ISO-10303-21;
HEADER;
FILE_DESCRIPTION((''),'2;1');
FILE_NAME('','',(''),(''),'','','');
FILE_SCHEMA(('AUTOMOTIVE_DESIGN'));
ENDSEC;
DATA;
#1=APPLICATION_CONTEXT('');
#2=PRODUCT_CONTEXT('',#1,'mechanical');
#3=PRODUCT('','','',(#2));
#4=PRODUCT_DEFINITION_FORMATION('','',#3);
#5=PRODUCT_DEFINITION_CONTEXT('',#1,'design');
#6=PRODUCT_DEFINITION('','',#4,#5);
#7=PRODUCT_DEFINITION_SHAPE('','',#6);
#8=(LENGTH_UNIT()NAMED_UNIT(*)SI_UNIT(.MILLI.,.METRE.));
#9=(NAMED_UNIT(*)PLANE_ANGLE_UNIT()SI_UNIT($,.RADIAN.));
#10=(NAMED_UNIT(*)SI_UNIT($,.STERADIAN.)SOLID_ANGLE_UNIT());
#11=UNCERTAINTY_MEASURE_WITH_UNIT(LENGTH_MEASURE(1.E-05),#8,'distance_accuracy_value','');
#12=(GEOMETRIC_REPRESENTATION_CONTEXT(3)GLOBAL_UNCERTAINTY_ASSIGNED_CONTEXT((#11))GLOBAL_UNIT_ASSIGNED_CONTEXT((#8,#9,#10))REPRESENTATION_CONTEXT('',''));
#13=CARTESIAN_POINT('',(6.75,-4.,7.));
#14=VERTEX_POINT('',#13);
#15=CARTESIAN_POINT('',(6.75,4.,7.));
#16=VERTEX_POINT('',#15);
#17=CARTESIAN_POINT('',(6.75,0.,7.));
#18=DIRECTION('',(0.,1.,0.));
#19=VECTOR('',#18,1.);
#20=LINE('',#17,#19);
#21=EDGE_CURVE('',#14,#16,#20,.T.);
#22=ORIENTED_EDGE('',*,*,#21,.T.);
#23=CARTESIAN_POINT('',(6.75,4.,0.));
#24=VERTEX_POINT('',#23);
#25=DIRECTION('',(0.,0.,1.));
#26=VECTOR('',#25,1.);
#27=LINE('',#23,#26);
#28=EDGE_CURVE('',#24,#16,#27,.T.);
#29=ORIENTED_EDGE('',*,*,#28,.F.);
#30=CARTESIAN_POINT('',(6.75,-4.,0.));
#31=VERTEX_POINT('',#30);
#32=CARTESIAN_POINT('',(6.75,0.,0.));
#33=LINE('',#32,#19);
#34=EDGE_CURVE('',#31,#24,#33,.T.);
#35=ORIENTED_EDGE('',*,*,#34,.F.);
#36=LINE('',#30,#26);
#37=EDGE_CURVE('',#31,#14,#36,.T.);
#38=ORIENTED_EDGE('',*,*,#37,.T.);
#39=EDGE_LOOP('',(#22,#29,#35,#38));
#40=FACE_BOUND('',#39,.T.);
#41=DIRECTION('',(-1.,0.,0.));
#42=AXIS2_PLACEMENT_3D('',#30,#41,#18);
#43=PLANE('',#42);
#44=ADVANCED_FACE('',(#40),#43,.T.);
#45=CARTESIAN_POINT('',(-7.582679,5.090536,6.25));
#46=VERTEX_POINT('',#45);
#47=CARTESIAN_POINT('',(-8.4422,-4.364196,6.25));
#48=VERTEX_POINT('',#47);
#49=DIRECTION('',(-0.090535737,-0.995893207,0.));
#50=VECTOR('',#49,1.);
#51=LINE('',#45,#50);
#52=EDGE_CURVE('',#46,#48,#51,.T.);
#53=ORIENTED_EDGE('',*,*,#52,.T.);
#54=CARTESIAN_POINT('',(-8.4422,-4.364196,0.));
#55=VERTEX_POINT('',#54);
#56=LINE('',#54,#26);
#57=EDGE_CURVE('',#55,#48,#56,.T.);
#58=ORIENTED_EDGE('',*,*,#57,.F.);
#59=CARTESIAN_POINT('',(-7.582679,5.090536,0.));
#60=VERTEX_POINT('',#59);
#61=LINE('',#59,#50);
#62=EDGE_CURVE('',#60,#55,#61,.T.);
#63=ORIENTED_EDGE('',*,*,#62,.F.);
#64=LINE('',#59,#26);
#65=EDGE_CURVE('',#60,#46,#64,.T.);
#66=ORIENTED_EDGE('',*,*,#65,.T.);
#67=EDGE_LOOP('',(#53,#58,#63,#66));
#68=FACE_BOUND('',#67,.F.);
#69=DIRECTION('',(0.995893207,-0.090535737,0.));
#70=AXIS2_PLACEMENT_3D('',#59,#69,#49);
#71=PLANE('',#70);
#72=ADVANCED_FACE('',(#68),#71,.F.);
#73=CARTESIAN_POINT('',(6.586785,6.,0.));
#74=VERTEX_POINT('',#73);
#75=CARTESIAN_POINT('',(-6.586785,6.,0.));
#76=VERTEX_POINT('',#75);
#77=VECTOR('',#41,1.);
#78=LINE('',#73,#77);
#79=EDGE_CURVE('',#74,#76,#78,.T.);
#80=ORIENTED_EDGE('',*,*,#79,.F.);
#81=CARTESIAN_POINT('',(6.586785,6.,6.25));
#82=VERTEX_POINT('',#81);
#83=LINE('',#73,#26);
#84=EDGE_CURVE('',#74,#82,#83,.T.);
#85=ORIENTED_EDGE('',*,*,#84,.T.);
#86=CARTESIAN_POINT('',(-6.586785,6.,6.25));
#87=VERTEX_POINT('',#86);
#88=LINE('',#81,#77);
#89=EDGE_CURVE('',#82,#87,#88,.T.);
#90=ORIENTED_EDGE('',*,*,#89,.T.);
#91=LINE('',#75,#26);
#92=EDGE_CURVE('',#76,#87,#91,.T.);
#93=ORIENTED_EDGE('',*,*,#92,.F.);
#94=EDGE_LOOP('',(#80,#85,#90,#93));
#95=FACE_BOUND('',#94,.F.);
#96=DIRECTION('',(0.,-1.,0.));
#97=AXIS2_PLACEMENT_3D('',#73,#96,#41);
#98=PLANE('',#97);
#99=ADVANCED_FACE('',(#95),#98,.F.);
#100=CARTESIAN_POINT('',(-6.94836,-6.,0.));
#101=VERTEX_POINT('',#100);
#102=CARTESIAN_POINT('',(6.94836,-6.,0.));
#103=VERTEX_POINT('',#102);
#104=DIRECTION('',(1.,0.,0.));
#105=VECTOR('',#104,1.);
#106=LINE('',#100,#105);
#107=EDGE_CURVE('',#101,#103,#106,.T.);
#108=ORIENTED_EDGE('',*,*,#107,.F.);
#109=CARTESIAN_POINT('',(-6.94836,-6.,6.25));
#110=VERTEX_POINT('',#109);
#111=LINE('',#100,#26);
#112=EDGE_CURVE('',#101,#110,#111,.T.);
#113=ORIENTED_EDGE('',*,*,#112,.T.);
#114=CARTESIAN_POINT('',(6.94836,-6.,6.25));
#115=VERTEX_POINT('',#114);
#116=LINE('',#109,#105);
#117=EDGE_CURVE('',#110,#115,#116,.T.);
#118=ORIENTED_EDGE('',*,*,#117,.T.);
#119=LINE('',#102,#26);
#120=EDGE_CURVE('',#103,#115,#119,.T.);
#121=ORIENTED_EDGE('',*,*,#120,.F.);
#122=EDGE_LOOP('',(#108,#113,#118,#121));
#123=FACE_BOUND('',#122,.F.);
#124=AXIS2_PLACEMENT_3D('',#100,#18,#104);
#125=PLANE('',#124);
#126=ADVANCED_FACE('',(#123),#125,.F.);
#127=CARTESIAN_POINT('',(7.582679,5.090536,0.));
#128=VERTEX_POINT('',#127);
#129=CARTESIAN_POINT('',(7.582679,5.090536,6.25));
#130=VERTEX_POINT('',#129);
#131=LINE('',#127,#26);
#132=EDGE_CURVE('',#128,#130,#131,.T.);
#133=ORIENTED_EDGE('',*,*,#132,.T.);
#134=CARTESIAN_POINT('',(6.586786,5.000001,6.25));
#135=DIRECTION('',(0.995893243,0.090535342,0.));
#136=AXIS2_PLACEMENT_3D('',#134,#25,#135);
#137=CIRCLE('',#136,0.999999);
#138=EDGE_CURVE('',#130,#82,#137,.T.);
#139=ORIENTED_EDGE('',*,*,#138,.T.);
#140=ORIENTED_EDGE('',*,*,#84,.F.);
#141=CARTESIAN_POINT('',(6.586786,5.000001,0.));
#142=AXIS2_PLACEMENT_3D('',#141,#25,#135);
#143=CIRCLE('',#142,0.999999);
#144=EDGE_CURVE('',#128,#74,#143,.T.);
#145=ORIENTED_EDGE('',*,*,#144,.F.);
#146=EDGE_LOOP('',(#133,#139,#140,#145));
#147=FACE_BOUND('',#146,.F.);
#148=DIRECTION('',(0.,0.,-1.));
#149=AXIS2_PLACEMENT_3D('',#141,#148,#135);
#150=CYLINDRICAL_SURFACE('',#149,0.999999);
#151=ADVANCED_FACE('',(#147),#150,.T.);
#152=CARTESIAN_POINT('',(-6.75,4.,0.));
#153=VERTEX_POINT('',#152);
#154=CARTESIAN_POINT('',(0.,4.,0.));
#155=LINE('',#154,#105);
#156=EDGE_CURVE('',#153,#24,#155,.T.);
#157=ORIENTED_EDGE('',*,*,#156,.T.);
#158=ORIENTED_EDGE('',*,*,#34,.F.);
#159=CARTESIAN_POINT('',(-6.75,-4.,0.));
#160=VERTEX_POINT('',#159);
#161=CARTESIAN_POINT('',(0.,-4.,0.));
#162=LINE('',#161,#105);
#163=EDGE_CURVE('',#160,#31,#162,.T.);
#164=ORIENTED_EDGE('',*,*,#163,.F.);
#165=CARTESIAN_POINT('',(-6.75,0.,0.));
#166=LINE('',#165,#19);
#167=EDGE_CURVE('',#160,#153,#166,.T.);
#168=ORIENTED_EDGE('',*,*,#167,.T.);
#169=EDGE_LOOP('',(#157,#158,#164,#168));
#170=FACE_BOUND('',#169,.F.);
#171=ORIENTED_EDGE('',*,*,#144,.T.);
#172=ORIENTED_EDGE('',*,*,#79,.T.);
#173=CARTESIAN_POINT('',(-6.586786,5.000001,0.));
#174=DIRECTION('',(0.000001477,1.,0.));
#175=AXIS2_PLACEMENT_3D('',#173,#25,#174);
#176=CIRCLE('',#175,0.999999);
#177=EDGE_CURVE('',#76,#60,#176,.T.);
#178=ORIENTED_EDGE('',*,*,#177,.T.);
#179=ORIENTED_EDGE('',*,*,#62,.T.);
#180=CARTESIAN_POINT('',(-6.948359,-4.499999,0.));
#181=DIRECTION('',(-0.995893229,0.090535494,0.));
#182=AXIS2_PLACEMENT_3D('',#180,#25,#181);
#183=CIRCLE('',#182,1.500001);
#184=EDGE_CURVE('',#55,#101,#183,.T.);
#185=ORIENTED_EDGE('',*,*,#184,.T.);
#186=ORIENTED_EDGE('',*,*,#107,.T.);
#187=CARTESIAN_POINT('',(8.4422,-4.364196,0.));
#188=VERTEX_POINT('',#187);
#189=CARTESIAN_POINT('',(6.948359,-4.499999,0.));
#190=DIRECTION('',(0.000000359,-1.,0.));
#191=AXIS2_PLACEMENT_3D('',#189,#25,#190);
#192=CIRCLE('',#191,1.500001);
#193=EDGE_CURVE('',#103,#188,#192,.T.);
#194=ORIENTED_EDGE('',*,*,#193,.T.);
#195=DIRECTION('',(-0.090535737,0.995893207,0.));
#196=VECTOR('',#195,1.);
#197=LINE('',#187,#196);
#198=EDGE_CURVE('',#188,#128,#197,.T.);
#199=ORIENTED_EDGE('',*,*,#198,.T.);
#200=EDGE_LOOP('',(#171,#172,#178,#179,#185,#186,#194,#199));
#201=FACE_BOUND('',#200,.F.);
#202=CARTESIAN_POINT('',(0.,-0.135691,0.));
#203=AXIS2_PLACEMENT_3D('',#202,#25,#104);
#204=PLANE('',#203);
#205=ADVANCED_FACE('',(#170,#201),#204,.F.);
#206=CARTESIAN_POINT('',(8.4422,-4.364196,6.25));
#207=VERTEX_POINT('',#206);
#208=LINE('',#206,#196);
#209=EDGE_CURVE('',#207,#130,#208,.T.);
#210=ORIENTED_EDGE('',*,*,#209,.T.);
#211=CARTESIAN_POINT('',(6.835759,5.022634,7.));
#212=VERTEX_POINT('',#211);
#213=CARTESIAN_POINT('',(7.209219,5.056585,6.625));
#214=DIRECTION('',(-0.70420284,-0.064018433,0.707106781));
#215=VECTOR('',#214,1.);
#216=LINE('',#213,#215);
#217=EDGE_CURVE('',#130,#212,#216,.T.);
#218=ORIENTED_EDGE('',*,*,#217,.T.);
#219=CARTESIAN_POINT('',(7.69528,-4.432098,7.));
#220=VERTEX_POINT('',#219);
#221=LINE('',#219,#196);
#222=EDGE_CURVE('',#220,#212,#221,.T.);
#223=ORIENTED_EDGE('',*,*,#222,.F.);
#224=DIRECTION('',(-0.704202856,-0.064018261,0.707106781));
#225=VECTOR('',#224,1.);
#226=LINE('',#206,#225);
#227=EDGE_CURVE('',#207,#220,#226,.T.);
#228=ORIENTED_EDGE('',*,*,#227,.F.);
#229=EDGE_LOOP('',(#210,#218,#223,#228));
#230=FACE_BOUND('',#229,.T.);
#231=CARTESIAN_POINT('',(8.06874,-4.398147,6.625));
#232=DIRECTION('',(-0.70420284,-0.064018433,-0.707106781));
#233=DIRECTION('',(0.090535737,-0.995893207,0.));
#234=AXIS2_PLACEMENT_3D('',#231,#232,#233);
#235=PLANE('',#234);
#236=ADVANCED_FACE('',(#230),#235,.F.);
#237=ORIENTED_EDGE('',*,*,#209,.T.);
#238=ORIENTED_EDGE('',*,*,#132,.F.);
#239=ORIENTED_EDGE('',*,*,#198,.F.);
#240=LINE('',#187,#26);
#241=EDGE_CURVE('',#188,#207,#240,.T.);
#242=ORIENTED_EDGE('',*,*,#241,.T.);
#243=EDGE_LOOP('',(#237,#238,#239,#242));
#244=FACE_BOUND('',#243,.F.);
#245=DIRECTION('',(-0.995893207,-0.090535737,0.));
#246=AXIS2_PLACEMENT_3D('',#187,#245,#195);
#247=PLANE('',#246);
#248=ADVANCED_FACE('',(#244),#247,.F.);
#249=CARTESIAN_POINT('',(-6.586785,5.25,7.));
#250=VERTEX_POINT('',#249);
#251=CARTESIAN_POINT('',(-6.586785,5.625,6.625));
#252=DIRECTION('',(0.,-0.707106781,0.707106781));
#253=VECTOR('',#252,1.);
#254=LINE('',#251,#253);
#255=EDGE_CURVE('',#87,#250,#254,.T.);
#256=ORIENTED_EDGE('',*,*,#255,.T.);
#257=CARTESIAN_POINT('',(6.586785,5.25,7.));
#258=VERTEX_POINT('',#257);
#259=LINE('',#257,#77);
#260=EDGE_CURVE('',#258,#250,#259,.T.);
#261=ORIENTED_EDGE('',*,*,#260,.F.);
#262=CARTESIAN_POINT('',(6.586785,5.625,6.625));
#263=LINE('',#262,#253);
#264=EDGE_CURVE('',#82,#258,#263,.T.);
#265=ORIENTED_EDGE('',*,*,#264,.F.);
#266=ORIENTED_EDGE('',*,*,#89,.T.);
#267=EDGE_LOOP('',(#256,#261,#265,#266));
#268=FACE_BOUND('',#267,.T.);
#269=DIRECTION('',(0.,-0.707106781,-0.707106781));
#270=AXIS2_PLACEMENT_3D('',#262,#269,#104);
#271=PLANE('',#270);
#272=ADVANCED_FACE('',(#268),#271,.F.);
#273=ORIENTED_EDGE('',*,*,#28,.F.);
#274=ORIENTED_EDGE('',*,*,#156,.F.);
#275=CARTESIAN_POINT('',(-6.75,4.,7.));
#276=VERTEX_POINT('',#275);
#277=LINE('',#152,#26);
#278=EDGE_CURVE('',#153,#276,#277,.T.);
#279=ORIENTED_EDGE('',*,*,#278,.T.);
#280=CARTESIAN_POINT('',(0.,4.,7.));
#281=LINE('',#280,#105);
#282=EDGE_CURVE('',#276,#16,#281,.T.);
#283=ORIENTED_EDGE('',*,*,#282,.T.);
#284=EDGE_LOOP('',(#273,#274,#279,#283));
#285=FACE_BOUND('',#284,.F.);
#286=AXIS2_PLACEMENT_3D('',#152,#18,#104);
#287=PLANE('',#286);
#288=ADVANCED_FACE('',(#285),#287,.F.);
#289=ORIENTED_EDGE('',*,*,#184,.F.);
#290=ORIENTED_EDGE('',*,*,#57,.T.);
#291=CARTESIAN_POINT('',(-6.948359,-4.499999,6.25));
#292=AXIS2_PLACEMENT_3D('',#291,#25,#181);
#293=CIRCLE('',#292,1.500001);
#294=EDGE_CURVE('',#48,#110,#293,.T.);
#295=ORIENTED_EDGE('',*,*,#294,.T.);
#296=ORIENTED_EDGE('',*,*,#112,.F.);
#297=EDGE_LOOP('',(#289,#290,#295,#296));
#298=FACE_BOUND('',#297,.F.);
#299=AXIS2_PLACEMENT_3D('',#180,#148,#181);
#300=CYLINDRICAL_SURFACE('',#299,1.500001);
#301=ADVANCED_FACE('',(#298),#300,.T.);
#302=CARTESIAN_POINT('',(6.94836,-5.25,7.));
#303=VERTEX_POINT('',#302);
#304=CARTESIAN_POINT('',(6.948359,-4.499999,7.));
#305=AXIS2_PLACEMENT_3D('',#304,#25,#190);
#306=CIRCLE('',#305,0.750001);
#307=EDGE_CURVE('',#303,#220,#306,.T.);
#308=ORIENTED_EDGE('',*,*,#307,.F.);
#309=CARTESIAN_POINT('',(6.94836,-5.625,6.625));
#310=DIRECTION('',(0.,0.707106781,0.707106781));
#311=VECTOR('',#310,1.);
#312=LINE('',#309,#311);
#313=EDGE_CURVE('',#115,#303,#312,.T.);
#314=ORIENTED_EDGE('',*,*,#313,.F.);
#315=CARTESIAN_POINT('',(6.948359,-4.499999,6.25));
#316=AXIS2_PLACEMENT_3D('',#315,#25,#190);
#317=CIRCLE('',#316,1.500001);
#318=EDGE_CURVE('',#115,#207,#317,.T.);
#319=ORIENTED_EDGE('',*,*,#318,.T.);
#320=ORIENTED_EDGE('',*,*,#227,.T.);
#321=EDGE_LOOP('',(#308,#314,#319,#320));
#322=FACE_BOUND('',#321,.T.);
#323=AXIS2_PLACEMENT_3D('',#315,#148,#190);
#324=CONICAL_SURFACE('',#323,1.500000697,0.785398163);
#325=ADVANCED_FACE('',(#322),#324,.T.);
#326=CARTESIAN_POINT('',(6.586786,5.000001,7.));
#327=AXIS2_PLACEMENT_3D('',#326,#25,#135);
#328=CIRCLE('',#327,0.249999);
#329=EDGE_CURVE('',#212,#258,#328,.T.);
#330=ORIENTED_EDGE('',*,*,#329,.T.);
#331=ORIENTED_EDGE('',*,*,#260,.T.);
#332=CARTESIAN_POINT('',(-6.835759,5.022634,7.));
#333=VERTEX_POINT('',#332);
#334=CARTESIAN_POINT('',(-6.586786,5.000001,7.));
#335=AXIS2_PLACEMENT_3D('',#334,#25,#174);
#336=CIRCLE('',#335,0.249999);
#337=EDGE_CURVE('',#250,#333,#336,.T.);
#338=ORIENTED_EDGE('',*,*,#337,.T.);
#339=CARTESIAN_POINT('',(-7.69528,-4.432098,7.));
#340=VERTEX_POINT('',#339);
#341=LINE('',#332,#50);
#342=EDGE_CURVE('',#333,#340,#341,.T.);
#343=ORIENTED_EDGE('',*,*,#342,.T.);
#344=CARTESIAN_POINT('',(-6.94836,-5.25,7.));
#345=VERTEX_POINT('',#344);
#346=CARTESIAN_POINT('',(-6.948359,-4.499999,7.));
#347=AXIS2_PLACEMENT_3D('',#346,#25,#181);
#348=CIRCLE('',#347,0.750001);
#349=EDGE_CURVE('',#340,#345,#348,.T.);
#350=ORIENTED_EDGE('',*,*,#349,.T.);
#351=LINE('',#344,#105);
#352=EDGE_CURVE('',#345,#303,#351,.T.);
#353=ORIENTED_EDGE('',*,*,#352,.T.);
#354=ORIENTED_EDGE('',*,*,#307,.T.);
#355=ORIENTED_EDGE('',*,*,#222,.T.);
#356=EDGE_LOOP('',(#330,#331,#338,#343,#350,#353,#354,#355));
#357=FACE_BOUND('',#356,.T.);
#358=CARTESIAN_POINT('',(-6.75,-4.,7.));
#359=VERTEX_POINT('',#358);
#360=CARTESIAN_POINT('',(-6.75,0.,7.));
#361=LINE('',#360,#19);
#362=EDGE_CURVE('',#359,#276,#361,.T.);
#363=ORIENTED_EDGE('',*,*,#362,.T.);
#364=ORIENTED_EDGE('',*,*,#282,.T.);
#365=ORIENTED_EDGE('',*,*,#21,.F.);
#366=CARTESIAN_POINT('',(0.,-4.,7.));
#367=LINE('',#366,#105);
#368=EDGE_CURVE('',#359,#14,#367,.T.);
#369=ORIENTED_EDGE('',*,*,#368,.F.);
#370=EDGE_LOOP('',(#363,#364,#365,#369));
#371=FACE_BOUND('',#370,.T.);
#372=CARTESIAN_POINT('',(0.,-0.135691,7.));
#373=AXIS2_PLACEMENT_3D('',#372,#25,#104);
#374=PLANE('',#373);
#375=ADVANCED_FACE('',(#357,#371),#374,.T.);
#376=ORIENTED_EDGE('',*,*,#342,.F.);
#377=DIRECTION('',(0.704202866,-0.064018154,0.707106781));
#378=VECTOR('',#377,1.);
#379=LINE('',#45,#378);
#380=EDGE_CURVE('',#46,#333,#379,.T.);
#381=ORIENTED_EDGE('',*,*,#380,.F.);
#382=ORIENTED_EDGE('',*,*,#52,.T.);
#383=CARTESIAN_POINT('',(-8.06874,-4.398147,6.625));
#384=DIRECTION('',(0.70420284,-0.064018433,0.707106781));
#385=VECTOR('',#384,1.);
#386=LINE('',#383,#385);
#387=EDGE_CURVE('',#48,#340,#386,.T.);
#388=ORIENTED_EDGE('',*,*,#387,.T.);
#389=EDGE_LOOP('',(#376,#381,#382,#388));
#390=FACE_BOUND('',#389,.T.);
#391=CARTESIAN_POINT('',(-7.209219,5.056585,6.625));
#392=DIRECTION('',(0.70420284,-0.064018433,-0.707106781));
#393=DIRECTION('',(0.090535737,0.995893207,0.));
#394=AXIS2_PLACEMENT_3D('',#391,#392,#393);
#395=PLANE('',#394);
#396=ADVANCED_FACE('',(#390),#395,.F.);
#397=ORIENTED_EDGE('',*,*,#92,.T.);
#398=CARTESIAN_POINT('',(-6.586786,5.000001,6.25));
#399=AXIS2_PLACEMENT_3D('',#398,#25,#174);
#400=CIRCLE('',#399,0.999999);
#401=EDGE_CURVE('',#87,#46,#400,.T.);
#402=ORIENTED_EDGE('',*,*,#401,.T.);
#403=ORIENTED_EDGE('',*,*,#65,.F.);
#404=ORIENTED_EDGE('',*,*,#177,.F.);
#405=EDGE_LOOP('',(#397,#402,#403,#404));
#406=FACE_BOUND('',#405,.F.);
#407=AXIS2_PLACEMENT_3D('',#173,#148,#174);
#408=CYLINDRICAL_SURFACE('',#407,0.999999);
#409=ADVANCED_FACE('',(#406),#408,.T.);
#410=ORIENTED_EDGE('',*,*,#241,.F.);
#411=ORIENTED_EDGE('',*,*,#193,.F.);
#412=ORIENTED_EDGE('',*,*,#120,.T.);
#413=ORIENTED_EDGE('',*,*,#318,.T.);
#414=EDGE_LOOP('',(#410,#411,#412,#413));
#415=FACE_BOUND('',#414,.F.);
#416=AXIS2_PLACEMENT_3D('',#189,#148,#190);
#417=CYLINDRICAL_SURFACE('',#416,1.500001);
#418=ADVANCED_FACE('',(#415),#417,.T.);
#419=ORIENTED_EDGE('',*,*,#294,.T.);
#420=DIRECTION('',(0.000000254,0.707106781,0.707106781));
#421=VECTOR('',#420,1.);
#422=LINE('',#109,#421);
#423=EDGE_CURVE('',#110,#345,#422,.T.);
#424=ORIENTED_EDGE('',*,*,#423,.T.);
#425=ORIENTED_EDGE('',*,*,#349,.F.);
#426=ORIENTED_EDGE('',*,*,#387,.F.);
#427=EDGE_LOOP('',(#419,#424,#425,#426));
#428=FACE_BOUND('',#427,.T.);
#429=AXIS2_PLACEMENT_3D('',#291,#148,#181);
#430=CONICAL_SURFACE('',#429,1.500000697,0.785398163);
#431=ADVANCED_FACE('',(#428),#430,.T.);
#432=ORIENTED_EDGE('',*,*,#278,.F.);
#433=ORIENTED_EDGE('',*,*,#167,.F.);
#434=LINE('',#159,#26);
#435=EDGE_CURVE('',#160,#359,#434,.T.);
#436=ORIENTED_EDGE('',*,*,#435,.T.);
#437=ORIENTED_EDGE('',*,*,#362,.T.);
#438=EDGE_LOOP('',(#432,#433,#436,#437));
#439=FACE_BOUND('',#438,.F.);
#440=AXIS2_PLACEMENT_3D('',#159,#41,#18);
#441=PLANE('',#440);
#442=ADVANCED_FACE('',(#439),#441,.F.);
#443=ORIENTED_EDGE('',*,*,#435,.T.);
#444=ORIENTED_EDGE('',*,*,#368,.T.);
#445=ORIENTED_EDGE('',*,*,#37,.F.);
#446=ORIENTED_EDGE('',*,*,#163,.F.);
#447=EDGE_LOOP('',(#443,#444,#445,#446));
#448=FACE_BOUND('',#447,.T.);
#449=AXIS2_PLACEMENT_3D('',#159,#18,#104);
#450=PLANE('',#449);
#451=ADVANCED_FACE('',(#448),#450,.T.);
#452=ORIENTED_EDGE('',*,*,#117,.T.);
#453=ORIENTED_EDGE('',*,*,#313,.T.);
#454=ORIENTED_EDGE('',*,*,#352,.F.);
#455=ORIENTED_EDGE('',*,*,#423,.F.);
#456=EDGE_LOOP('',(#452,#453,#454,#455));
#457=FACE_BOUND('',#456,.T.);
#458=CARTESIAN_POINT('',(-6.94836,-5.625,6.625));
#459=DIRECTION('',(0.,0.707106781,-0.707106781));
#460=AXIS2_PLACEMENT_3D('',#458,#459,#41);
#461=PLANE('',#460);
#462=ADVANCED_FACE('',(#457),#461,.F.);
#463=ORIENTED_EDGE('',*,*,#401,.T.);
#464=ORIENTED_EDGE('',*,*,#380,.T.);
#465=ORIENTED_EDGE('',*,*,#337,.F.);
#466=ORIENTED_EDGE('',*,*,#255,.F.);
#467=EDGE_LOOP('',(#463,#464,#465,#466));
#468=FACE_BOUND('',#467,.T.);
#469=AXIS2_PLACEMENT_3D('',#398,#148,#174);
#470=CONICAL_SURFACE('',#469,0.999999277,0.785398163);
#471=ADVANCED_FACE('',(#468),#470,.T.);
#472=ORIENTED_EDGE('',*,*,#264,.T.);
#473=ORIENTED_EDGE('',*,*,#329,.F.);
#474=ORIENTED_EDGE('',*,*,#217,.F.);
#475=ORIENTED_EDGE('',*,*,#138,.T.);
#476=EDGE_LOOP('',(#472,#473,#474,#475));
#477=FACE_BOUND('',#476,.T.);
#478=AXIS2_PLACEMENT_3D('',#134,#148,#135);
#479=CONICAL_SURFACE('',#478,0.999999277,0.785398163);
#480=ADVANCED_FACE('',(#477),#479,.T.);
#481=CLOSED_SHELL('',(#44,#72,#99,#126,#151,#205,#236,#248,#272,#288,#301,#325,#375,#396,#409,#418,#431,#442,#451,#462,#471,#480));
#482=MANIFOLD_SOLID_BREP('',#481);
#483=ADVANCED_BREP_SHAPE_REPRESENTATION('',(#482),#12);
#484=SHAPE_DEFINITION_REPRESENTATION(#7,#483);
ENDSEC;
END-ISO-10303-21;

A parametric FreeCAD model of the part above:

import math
import FreeCAD as App
import Part
import Sketcher

V = App.Vector
Q = App.Units.Quantity


def edges_at(feature, points):
    """Names of the edges that pass closest to the given points."""
    edges = feature.Shape.Edges
    near = lambda p: min(range(len(edges)), key=lambda i: edges[i].distToShape(Part.Vertex(*p))[0])
    return sorted({f"Edge{near(p) + 1}" for p in points})

doc = App.newDocument("Part")
body = doc.addObject("PartDesign::Body", "Body")

sketch1 = body.newObject("Sketcher::SketchObject", "Sketch")
sketch1.AttachmentSupport = (doc.getObject("XY_Plane"), [""])
sketch1.MapMode = "FlatFace"
sketch1.addGeometry([
    Part.LineSegment(V(-6.9, -6, 0), V(6.9, -6, 0)),
    Part.ArcOfCircle(Part.Circle(V(6.9, -4.5, 0), V(0, 0, 1), 1.5), math.radians(-90), math.radians(5)),
    Part.LineSegment(V(8.4, -4.4, 0), V(7.6, 5.1, 0)),
    Part.ArcOfCircle(Part.Circle(V(6.6, 5, 0), V(0, 0, 1), 1), math.radians(5), math.radians(90)),
    Part.LineSegment(V(6.6, 6, 0), V(-6.6, 6, 0)),
    Part.ArcOfCircle(Part.Circle(V(-6.6, 5, 0), V(0, 0, 1), 1), math.radians(90), math.radians(175)),
    Part.LineSegment(V(-7.6, 5.1, 0), V(-8.4, -4.4, 0)),
    Part.ArcOfCircle(Part.Circle(V(-6.9, -4.5, 0), V(0, 0, 1), 1.5), math.radians(175), math.radians(270)),
    Part.LineSegment(V(6.8, -4, 0), V(-6.8, -4, 0)),
    Part.LineSegment(V(-6.8, -4, 0), V(-6.8, 4, 0)),
    Part.LineSegment(V(-6.8, 4, 0), V(6.8, 4, 0)),
    Part.LineSegment(V(6.8, 4, 0), V(6.8, -4, 0)),
], False)
sketch1.addConstraint([
    Sketcher.Constraint("Tangent", 0, 2, 1, 1),
    Sketcher.Constraint("Tangent", 1, 2, 2, 1),
    Sketcher.Constraint("Tangent", 2, 2, 3, 1),
    Sketcher.Constraint("Tangent", 3, 2, 4, 1),
    Sketcher.Constraint("Tangent", 4, 2, 5, 1),
    Sketcher.Constraint("Tangent", 5, 2, 6, 1),
    Sketcher.Constraint("Tangent", 6, 2, 7, 1),
    Sketcher.Constraint("Tangent", 7, 2, 0, 1),
    Sketcher.Constraint("Coincident", 8, 2, 9, 1),
    Sketcher.Constraint("Coincident", 9, 2, 10, 1),
    Sketcher.Constraint("Coincident", 10, 2, 11, 1),
    Sketcher.Constraint("Coincident", 11, 2, 8, 1),
    Sketcher.Constraint("Horizontal", 0),
    Sketcher.Constraint("Horizontal", 4),
    Sketcher.Constraint("Horizontal", 8),
    Sketcher.Constraint("Vertical", 9),
    Sketcher.Constraint("Horizontal", 10),
    Sketcher.Constraint("Vertical", 11),
    Sketcher.Constraint("Equal", 3, 5),
    Sketcher.Constraint("Equal", 1, 7),
    Sketcher.Constraint("Symmetric", 8, 2, 10, 2, -1, 1),
    Sketcher.Constraint("Symmetric", 2, 2, 5, 2, -2),
    Sketcher.Constraint("Radius", 3, Q("0.999999 mm")),
    Sketcher.Constraint("Radius", 1, Q("1.500001 mm")),
    Sketcher.Constraint("DistanceY", 9, 1, 9, 2, Q("8 mm")),
    Sketcher.Constraint("DistanceX", 8, 2, 8, 1, Q("13.5 mm")),
    Sketcher.Constraint("DistanceY", -1, 1, 3, 3, Q("5.000001 mm")),
    Sketcher.Constraint("DistanceY", 0, 2, -1, 1, Q("6 mm")),
    Sketcher.Constraint("DistanceX", 0, 1, 0, 2, Q("13.89672 mm")),
    Sketcher.Constraint("DistanceX", 4, 2, 4, 1, Q("13.17357 mm")),
])
pad1 = body.newObject("PartDesign::Pad", "Pad")
pad1.Profile = sketch1
pad1.Length = 7
doc.recompute()

chamfer = body.newObject("PartDesign::Chamfer", "Chamfer")
chamfer.Base = (pad1, edges_at(pad1, [(0, 6, 7)]))
chamfer.Size = 0.75

doc.recompute()
